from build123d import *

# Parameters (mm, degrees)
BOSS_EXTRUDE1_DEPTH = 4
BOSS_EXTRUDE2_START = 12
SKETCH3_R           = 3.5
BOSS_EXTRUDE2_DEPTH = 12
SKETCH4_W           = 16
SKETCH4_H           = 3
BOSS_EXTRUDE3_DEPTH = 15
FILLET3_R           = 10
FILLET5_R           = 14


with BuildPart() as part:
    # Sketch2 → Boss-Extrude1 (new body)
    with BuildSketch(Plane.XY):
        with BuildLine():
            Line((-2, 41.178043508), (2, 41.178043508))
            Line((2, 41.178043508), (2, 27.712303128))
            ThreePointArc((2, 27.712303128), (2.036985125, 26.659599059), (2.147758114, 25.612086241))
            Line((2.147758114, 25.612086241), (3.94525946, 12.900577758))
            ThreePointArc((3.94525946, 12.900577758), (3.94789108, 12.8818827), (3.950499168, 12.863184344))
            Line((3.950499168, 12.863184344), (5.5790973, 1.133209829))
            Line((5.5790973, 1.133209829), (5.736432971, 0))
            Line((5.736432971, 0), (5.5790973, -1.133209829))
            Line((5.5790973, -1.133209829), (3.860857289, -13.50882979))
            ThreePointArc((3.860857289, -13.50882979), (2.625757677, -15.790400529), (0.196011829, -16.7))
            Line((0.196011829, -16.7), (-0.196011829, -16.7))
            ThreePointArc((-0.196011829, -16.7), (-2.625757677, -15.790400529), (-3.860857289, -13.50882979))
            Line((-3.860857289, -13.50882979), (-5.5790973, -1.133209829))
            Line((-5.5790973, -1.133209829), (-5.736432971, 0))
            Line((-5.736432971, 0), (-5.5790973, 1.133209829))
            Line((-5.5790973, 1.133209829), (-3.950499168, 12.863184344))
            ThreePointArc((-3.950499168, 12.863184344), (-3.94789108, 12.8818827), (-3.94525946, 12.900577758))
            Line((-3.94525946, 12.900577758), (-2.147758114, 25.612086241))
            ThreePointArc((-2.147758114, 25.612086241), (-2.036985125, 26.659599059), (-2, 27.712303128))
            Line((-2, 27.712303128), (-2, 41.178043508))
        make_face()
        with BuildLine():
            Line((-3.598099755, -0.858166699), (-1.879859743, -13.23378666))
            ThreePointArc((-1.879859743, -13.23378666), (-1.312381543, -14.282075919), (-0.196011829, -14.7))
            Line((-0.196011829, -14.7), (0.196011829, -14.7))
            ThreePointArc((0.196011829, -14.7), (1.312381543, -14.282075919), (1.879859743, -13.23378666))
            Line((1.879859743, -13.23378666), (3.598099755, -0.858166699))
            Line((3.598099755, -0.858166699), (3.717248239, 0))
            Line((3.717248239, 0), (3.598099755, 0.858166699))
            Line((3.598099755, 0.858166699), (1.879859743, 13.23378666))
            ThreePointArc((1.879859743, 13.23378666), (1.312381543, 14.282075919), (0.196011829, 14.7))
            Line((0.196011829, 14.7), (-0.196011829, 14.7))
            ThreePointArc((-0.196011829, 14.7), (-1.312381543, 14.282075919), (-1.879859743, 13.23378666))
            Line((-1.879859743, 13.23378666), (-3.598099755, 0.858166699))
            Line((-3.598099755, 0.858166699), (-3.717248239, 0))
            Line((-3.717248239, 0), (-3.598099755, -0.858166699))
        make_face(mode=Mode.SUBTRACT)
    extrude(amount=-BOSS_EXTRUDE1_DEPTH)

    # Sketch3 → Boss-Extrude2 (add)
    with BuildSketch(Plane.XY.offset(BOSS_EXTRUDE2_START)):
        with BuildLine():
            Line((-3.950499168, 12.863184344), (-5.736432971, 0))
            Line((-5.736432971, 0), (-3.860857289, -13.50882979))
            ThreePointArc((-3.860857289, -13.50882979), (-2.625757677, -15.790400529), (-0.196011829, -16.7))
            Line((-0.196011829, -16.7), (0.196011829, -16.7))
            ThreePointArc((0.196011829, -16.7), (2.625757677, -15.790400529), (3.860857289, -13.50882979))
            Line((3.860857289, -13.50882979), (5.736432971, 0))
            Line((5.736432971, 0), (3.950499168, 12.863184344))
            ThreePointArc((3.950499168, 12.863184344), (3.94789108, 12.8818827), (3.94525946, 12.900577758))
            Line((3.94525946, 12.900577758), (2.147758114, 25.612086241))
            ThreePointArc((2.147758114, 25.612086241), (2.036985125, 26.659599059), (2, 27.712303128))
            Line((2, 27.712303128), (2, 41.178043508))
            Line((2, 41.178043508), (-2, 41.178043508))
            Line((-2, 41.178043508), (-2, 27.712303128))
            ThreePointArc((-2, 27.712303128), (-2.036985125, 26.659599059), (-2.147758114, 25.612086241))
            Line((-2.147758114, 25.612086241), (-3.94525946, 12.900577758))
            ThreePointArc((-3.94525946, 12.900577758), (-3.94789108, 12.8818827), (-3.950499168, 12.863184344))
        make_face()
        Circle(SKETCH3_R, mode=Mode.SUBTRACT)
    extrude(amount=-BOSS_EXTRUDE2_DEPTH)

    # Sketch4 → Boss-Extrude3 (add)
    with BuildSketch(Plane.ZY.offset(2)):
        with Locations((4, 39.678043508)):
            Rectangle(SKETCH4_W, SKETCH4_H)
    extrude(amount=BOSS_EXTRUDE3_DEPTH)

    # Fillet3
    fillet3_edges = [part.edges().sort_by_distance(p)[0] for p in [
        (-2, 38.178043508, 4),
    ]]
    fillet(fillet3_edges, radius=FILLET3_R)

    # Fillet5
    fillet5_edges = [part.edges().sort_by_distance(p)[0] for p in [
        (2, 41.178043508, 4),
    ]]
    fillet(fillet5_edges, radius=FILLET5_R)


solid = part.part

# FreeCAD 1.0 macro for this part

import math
import FreeCAD as App
import Part
import Sketcher
Q = App.Units.Quantity


def edges_at(feature, points):
    """Names of the edges that pass closest to the given points."""
    edges = feature.Shape.Edges
    near = lambda p: min(range(len(edges)), key=lambda i: edges[i].distToShape(Part.Vertex(*p))[0])
    return sorted({f"Edge{near(p) + 1}" for p in points})

doc = App.newDocument("Part")
body = doc.addObject("PartDesign::Body", "Body")

sketch1 = body.newObject("Sketcher::SketchObject", "Sketch")
sketch1.AttachmentSupport = (doc.getObject("XY_Plane"), [""])
sketch1.MapMode = "FlatFace"
sketch1.addGeometry(Part.LineSegment(App.Vector(2, 41.178, 0), App.Vector(-2, 41.178, 0)), False)
sketch1.addGeometry(Part.LineSegment(App.Vector(-2, 41.178, 0), App.Vector(-2, 27.712, 0)), False)
sketch1.addGeometry(Part.ArcOfCircle(Part.Circle(App.Vector(-17, 27.712, 0), App.Vector(0, 0, 1), 15), math.radians(-8.05), math.radians(0)), False)
sketch1.addGeometry(Part.LineSegment(App.Vector(-2.148, 25.612, 0), App.Vector(-3.945, 12.901, 0)), False)
sketch1.addGeometry(Part.ArcOfCircle(Part.Circle(App.Vector(10.907, 10.8, 0), App.Vector(0, 0, 1), 15), math.radians(171.95), math.radians(172.1)), False)
sketch1.addGeometry(Part.LineSegment(App.Vector(-3.95, 12.863, 0), App.Vector(-5.579, 1.133, 0)), False)
sketch1.addGeometry(Part.LineSegment(App.Vector(-5.579, 1.133, 0), App.Vector(-5.736, 0, 0)), False)
sketch1.addGeometry(Part.LineSegment(App.Vector(-5.736, 0, 0), App.Vector(-5.579, -1.133, 0)), False)
sketch1.addGeometry(Part.LineSegment(App.Vector(-5.579, -1.133, 0), App.Vector(-3.861, -13.509, 0)), False)
sketch1.addGeometry(Part.ArcOfCircle(Part.Circle(App.Vector(-0.196, -13, 0), App.Vector(0, 0, 1), 3.7), math.radians(-172), math.radians(-90)), False)
sketch1.addGeometry(Part.LineSegment(App.Vector(-0.196, -16.7, 0), App.Vector(0.196, -16.7, 0)), False)
sketch1.addGeometry(Part.ArcOfCircle(Part.Circle(App.Vector(0.196, -13, 0), App.Vector(0, 0, 1), 3.7), math.radians(-90), math.radians(-8)), False)
sketch1.addGeometry(Part.LineSegment(App.Vector(3.861, -13.509, 0), App.Vector(5.579, -1.133, 0)), False)
sketch1.addGeometry(Part.LineSegment(App.Vector(5.579, -1.133, 0), App.Vector(5.736, 0, 0)), False)
sketch1.addGeometry(Part.LineSegment(App.Vector(5.736, 0, 0), App.Vector(5.579, 1.133, 0)), False)
sketch1.addGeometry(Part.LineSegment(App.Vector(5.579, 1.133, 0), App.Vector(3.95, 12.863, 0)), False)
sketch1.addGeometry(Part.ArcOfCircle(Part.Circle(App.Vector(-10.907, 10.8, 0), App.Vector(0, 0, 1), 15), math.radians(7.9), math.radians(8.05)), False)
sketch1.addGeometry(Part.LineSegment(App.Vector(3.945, 12.901, 0), App.Vector(2.148, 25.612, 0)), False)
sketch1.addGeometry(Part.ArcOfCircle(Part.Circle(App.Vector(17, 27.712, 0), App.Vector(0, 0, 1), 15), math.radians(180), math.radians(188.05)), False)
sketch1.addGeometry(Part.LineSegment(App.Vector(2, 27.712, 0), App.Vector(2, 41.178, 0)), False)
sketch1.addGeometry(Part.LineSegment(App.Vector(-3.598, -0.858, 0), App.Vector(-3.717, 0, 0)), False)
sketch1.addGeometry(Part.LineSegment(App.Vector(-3.717, 0, 0), App.Vector(-3.598, 0.858, 0)), False)
sketch1.addGeometry(Part.LineSegment(App.Vector(-3.598, 0.858, 0), App.Vector(-1.88, 13.234, 0)), False)
sketch1.addGeometry(Part.ArcOfCircle(Part.Circle(App.Vector(-0.196, 13, 0), App.Vector(0, 0, 1), 1.7), math.radians(90), math.radians(172)), False)
sketch1.addGeometry(Part.LineSegment(App.Vector(-0.196, 14.7, 0), App.Vector(0.196, 14.7, 0)), False)
sketch1.addGeometry(Part.ArcOfCircle(Part.Circle(App.Vector(0.196, 13, 0), App.Vector(0, 0, 1), 1.7), math.radians(8), math.radians(90)), False)
sketch1.addGeometry(Part.LineSegment(App.Vector(1.88, 13.234, 0), App.Vector(3.598, 0.858, 0)), False)
sketch1.addGeometry(Part.LineSegment(App.Vector(3.598, 0.858, 0), App.Vector(3.717, 0, 0)), False)
sketch1.addGeometry(Part.LineSegment(App.Vector(3.717, 0, 0), App.Vector(3.598, -0.858, 0)), False)
sketch1.addGeometry(Part.LineSegment(App.Vector(3.598, -0.858, 0), App.Vector(1.88, -13.234, 0)), False)
sketch1.addGeometry(Part.ArcOfCircle(Part.Circle(App.Vector(0.196, -13, 0), App.Vector(0, 0, 1), 1.7), math.radians(-90), math.radians(-8)), False)
sketch1.addGeometry(Part.LineSegment(App.Vector(0.196, -14.7, 0), App.Vector(-0.196, -14.7, 0)), False)
sketch1.addGeometry(Part.ArcOfCircle(Part.Circle(App.Vector(-0.196, -13, 0), App.Vector(0, 0, 1), 1.7), math.radians(-172), math.radians(-90)), False)
sketch1.addGeometry(Part.LineSegment(App.Vector(-1.88, -13.234, 0), App.Vector(-3.598, -0.858, 0)), False)
sketch1.addConstraint(Sketcher.Constraint("Coincident", 0, 2, 1, 1))
sketch1.addConstraint(Sketcher.Constraint("Tangent", 1, 2, 2, 2))
sketch1.addConstraint(Sketcher.Constraint("Tangent", 2, 1, 3, 1))
sketch1.addConstraint(Sketcher.Constraint("Tangent", 3, 2, 4, 1))
sketch1.addConstraint(Sketcher.Constraint("Tangent", 4, 2, 5, 1))
sketch1.addConstraint(Sketcher.Constraint("Coincident", 5, 2, 6, 1))
sketch1.addConstraint(Sketcher.Constraint("Coincident", 6, 2, 7, 1))
sketch1.addConstraint(Sketcher.Constraint("Coincident", 7, 2, 8, 1))
sketch1.addConstraint(Sketcher.Constraint("Tangent", 8, 2, 9, 1))
sketch1.addConstraint(Sketcher.Constraint("Tangent", 9, 2, 10, 1))
sketch1.addConstraint(Sketcher.Constraint("Tangent", 10, 2, 11, 1))
sketch1.addConstraint(Sketcher.Constraint("Tangent", 11, 2, 12, 1))
sketch1.addConstraint(Sketcher.Constraint("Coincident", 12, 2, 13, 1))
sketch1.addConstraint(Sketcher.Constraint("Coincident", 13, 2, 14, 1))
sketch1.addConstraint(Sketcher.Constraint("Coincident", 14, 2, 15, 1))
sketch1.addConstraint(Sketcher.Constraint("Tangent", 15, 2, 16, 1))
sketch1.addConstraint(Sketcher.Constraint("Tangent", 16, 2, 17, 1))
sketch1.addConstraint(Sketcher.Constraint("Tangent", 17, 2, 18, 2))
sketch1.addConstraint(Sketcher.Constraint("Tangent", 18, 1, 19, 1))
sketch1.addConstraint(Sketcher.Constraint("Coincident", 19, 2, 0, 1))
sketch1.addConstraint(Sketcher.Constraint("Coincident", 20, 2, 21, 1))
sketch1.addConstraint(Sketcher.Constraint("Coincident", 21, 2, 22, 1))
sketch1.addConstraint(Sketcher.Constraint("Tangent", 22, 2, 23, 2))
sketch1.addConstraint(Sketcher.Constraint("Tangent", 23, 1, 24, 1))
sketch1.addConstraint(Sketcher.Constraint("Tangent", 24, 2, 25, 2))
sketch1.addConstraint(Sketcher.Constraint("Tangent", 25, 1, 26, 1))
sketch1.addConstraint(Sketcher.Constraint("Coincident", 26, 2, 27, 1))
sketch1.addConstraint(Sketcher.Constraint("Coincident", 27, 2, 28, 1))
sketch1.addConstraint(Sketcher.Constraint("Coincident", 28, 2, 29, 1))
sketch1.addConstraint(Sketcher.Constraint("Tangent", 29, 2, 30, 2))
sketch1.addConstraint(Sketcher.Constraint("Tangent", 30, 1, 31, 1))
sketch1.addConstraint(Sketcher.Constraint("Tangent", 31, 2, 32, 2))
sketch1.addConstraint(Sketcher.Constraint("Tangent", 32, 1, 33, 1))
sketch1.addConstraint(Sketcher.Constraint("Coincident", 33, 2, 20, 1))
sketch1.addConstraint(Sketcher.Constraint("Horizontal", 0))
sketch1.addConstraint(Sketcher.Constraint("Vertical", 1))
sketch1.addConstraint(Sketcher.Constraint("Horizontal", 10))
sketch1.addConstraint(Sketcher.Constraint("Vertical", 19))
sketch1.addConstraint(Sketcher.Constraint("Horizontal", 24))
sketch1.addConstraint(Sketcher.Constraint("Horizontal", 31))
sketch1.addConstraint(Sketcher.Constraint("Coincident", 30, 3, 11, 3))
sketch1.addConstraint(Sketcher.Constraint("Coincident", 32, 3, 9, 3))
sketch1.addConstraint(Sketcher.Constraint("Equal", 9, 11))
sketch1.addConstraint(Sketcher.Constraint("Equal", 4, 16))
sketch1.addConstraint(Sketcher.Constraint("Equal", 2, 18))
sketch1.addConstraint(Sketcher.Constraint("Equal", 23, 25))
sketch1.addConstraint(Sketcher.Constraint("Equal", 25, 30))
sketch1.addConstraint(Sketcher.Constraint("Symmetric", 11, 3, 23, 3, -1, 1))
sketch1.addConstraint(Sketcher.Constraint("Symmetric", 5, 2, 12, 2, -1, 1))
sketch1.addConstraint(Sketcher.Constraint("Symmetric", 6, 2, 13, 2, -1, 1))
sketch1.addConstraint(Sketcher.Constraint("Symmetric", 7, 2, 14, 2, -1, 1))
sketch1.addConstraint(Sketcher.Constraint("Symmetric", 20, 2, 27, 2, -1, 1))
sketch1.addConstraint(Sketcher.Constraint("Symmetric", 21, 2, 28, 2, -1, 1))
sketch1.addConstraint(Sketcher.Constraint("Symmetric", 25, 1, 32, 1, -1, 1))
sketch1.addConstraint(Sketcher.Constraint("Symmetric", 4, 3, 16, 3, -2))
sketch1.addConstraint(Sketcher.Constraint("Symmetric", 2, 3, 18, 3, -2))
sketch1.addConstraint(Sketcher.Constraint("Symmetric", 8, 2, 11, 2, -2))
sketch1.addConstraint(Sketcher.Constraint("Symmetric", 21, 2, 26, 2, -2))
sketch1.addConstraint(Sketcher.Constraint("PointOnObject", 6, 2, -1))
sketch1.addConstraint(Sketcher.Constraint("PointOnObject", 20, 2, -1))
sketch1.addConstraint(Sketcher.Constraint("Parallel", 5, 6))
sketch1.addConstraint(Sketcher.Constraint("Parallel", 7, 8))
sketch1.addConstraint(Sketcher.Constraint("Parallel", 15, 20))
sketch1.addConstraint(Sketcher.Constraint("Parallel", 21, 22))
sketch1.addConstraint(Sketcher.Constraint("Horizontal", 7, 2, 12, 2))
sketch1.addConstraint(Sketcher.Constraint("Horizontal", 28, 2, 33, 2))
sketch1.addConstraint(Sketcher.Constraint("Equal", 12, 22))
sketch1.addConstraint(Sketcher.Constraint("Radius", 2, Q("15 mm")))
sketch1.addConstraint(Sketcher.Constraint("Radius", 9, Q("3.7 mm")))
sketch1.addConstraint(Sketcher.Constraint("Radius", 23, Q("1.7 mm")))
sketch1.addConstraint(Sketcher.Constraint("DistanceX", 0, 2, 0, 1, Q("4 mm")))
sketch1.addConstraint(Sketcher.Constraint("DistanceY", 9, 3, -1, 1, Q("13 mm")))
sketch1.addConstraint(Sketcher.Constraint("Radius", 4, Q("15.000037 mm")))
sketch1.addConstraint(Sketcher.Constraint("DistanceX", 4, 2, 15, 2, Q("7.900998 mm")))
sketch1.addConstraint(Sketcher.Constraint("Distance", 20, Q("0.866399 mm")))
sketch1.addConstraint(Sketcher.Constraint("DistanceY", 1, 2, 1, 1, Q("13.46574 mm")))
sketch1.addConstraint(Sketcher.Constraint("DistanceX", 21, 2, -1, 1, Q("3.5981 mm")))
sketch1.addConstraint(Sketcher.Constraint("DistanceX", 3, 2, 2, 1, Q("1.797501 mm")))
sketch1.addConstraint(Sketcher.Constraint("DistanceY", 4, 2, 2, 1, Q("12.748902 mm")))
pad1 = body.newObject("PartDesign::Pad", "Pad")
pad1.Profile = sketch1
pad1.Length = 4
pad1.Reversed = True

sketch2 = body.newObject("Sketcher::SketchObject", "Sketch001")
sketch2.AttachmentSupport = (doc.getObject("XY_Plane"), [""])
sketch2.MapMode = "FlatFace"
sketch2.AttachmentOffset = App.Placement(App.Vector(0, 0, 12), App.Rotation())
sketch2.addGeometry(Part.LineSegment(App.Vector(-3.95, 12.863, 0), App.Vector(-5.736, 0, 0)), False)
sketch2.addGeometry(Part.LineSegment(App.Vector(-5.736, 0, 0), App.Vector(-3.861, -13.509, 0)), False)
sketch2.addGeometry(Part.ArcOfCircle(Part.Circle(App.Vector(-0.196, -13, 0), App.Vector(0, 0, 1), 3.7), math.radians(-172), math.radians(-90)), False)
sketch2.addGeometry(Part.LineSegment(App.Vector(-0.196, -16.7, 0), App.Vector(0.196, -16.7, 0)), False)
sketch2.addGeometry(Part.ArcOfCircle(Part.Circle(App.Vector(0.196, -13, 0), App.Vector(0, 0, 1), 3.7), math.radians(-90), math.radians(-8)), False)
sketch2.addGeometry(Part.LineSegment(App.Vector(3.861, -13.509, 0), App.Vector(5.736, 0, 0)), False)
sketch2.addGeometry(Part.LineSegment(App.Vector(5.736, 0, 0), App.Vector(3.95, 12.863, 0)), False)
sketch2.addGeometry(Part.ArcOfCircle(Part.Circle(App.Vector(-10.907, 10.8, 0), App.Vector(0, 0, 1), 15), math.radians(7.9), math.radians(8.05)), False)
sketch2.addGeometry(Part.LineSegment(App.Vector(3.945, 12.901, 0), App.Vector(2.148, 25.612, 0)), False)
sketch2.addGeometry(Part.ArcOfCircle(Part.Circle(App.Vector(17, 27.712, 0), App.Vector(0, 0, 1), 15), math.radians(180), math.radians(188.05)), False)
sketch2.addGeometry(Part.LineSegment(App.Vector(2, 27.712, 0), App.Vector(2, 41.178, 0)), False)
sketch2.addGeometry(Part.LineSegment(App.Vector(2, 41.178, 0), App.Vector(-2, 41.178, 0)), False)
sketch2.addGeometry(Part.LineSegment(App.Vector(-2, 41.178, 0), App.Vector(-2, 27.712, 0)), False)
sketch2.addGeometry(Part.ArcOfCircle(Part.Circle(App.Vector(-17, 27.712, 0), App.Vector(0, 0, 1), 15), math.radians(-8.05), math.radians(0)), False)
sketch2.addGeometry(Part.LineSegment(App.Vector(-2.148, 25.612, 0), App.Vector(-3.945, 12.901, 0)), False)
sketch2.addGeometry(Part.ArcOfCircle(Part.Circle(App.Vector(10.907, 10.8, 0), App.Vector(0, 0, 1), 15), math.radians(171.95), math.radians(172.1)), False)
sketch2.addGeometry(Part.Circle(App.Vector(0, 0, 0), App.Vector(0, 0, 1), 3.5), False)
sketch2.addConstraint(Sketcher.Constraint("Coincident", 0, 2, 1, 1))
sketch2.addConstraint(Sketcher.Constraint("Tangent", 1, 2, 2, 1))
sketch2.addConstraint(Sketcher.Constraint("Tangent", 2, 2, 3, 1))
sketch2.addConstraint(Sketcher.Constraint("Tangent", 3, 2, 4, 1))
sketch2.addConstraint(Sketcher.Constraint("Tangent", 4, 2, 5, 1))
sketch2.addConstraint(Sketcher.Constraint("Coincident", 5, 2, 6, 1))
sketch2.addConstraint(Sketcher.Constraint("Tangent", 6, 2, 7, 1))
sketch2.addConstraint(Sketcher.Constraint("Tangent", 7, 2, 8, 1))
sketch2.addConstraint(Sketcher.Constraint("Tangent", 8, 2, 9, 2))
sketch2.addConstraint(Sketcher.Constraint("Tangent", 9, 1, 10, 1))
sketch2.addConstraint(Sketcher.Constraint("Coincident", 10, 2, 11, 1))
sketch2.addConstraint(Sketcher.Constraint("Coincident", 11, 2, 12, 1))
sketch2.addConstraint(Sketcher.Constraint("Tangent", 12, 2, 13, 2))
sketch2.addConstraint(Sketcher.Constraint("Tangent", 13, 1, 14, 1))
sketch2.addConstraint(Sketcher.Constraint("Tangent", 14, 2, 15, 1))
sketch2.addConstraint(Sketcher.Constraint("Tangent", 15, 2, 0, 1))
sketch2.addConstraint(Sketcher.Constraint("Horizontal", 3))
sketch2.addConstraint(Sketcher.Constraint("Vertical", 10))
sketch2.addConstraint(Sketcher.Constraint("Horizontal", 11))
sketch2.addConstraint(Sketcher.Constraint("Vertical", 12))
sketch2.addConstraint(Sketcher.Constraint("Coincident", 16, 3, -1, 1))
sketch2.addConstraint(Sketcher.Constraint("Equal", 2, 4))
sketch2.addConstraint(Sketcher.Constraint("Equal", 9, 13))
sketch2.addConstraint(Sketcher.Constraint("Equal", 7, 15))
sketch2.addConstraint(Sketcher.Constraint("Symmetric", 0, 2, 5, 2, -1, 1))
sketch2.addConstraint(Sketcher.Constraint("Symmetric", 9, 3, 13, 3, -2))
sketch2.addConstraint(Sketcher.Constraint("Symmetric", 7, 3, 15, 3, -2))
sketch2.addConstraint(Sketcher.Constraint("Symmetric", 1, 2, 4, 2, -2))
sketch2.addConstraint(Sketcher.Constraint("Parallel", 0, 5))
sketch2.addConstraint(Sketcher.Constraint("Diameter", 16, Q("7 mm")))
sketch2.addConstraint(Sketcher.Constraint("Radius", 9, Q("15 mm")))
sketch2.addConstraint(Sketcher.Constraint("Radius", 2, Q("3.7 mm")))
sketch2.addConstraint(Sketcher.Constraint("DistanceX", 11, 2, 11, 1, Q("4 mm")))
sketch2.addConstraint(Sketcher.Constraint("DistanceY", 2, 3, -1, 1, Q("13 mm")))
sketch2.addConstraint(Sketcher.Constraint("Radius", 7, Q("15.000037 mm")))
sketch2.addConstraint(Sketcher.Constraint("DistanceX", 15, 2, 6, 2, Q("7.900998 mm")))
sketch2.addConstraint(Sketcher.Constraint("DistanceY", 10, 1, 10, 2, Q("13.46574 mm")))
sketch2.addConstraint(Sketcher.Constraint("DistanceX", 8, 2, 7, 2, Q("1.797501 mm")))
sketch2.addConstraint(Sketcher.Constraint("DistanceY", 6, 2, 8, 2, Q("12.748902 mm")))
sketch2.addConstraint(Sketcher.Constraint("DistanceX", 3, 1, 3, 2, Q("0.392024 mm")))
pad2 = body.newObject("PartDesign::Pad", "Pad001")
pad2.Profile = sketch2
pad2.Length = 12
pad2.Reversed = True

sketch3 = body.newObject("Sketcher::SketchObject", "Sketch002")
sketch3.AttachmentSupport = (doc.getObject("YZ_Plane"), [""])
sketch3.MapMode = "FlatFace"
sketch3.AttachmentOffset = App.Placement(App.Vector(0, 0, -2), App.Rotation())
sketch3.addGeometry(Part.LineSegment(App.Vector(41.2, -4, 0), App.Vector(38.2, -4, 0)), False)
sketch3.addGeometry(Part.LineSegment(App.Vector(38.2, -4, 0), App.Vector(38.2, 12, 0)), False)
sketch3.addGeometry(Part.LineSegment(App.Vector(38.2, 12, 0), App.Vector(41.2, 12, 0)), False)
sketch3.addGeometry(Part.LineSegment(App.Vector(41.2, 12, 0), App.Vector(41.2, -4, 0)), False)
sketch3.addConstraint(Sketcher.Constraint("Coincident", 0, 2, 1, 1))
sketch3.addConstraint(Sketcher.Constraint("Coincident", 1, 2, 2, 1))
sketch3.addConstraint(Sketcher.Constraint("Coincident", 2, 2, 3, 1))
sketch3.addConstraint(Sketcher.Constraint("Coincident", 3, 2, 0, 1))
sketch3.addConstraint(Sketcher.Constraint("Horizontal", 0))
sketch3.addConstraint(Sketcher.Constraint("Vertical", 1))
sketch3.addConstraint(Sketcher.Constraint("Horizontal", 2))
sketch3.addConstraint(Sketcher.Constraint("Vertical", 3))
sketch3.addConstraint(Sketcher.Constraint("DistanceX", 0, 2, 0, 1, Q("3 mm")))
sketch3.addConstraint(Sketcher.Constraint("DistanceY", 1, 1, 1, 2, Q("16 mm")))
sketch3.addConstraint(Sketcher.Constraint("DistanceY", 0, 2, -1, 1, Q("4 mm")))
sketch3.addConstraint(Sketcher.Constraint("DistanceX", -1, 1, 0, 2, Q("38.178044 mm")))
pad3 = body.newObject("PartDesign::Pad", "Pad002")
pad3.Profile = sketch3
pad3.Length = 15
pad3.Reversed = True
doc.recompute()

fillet = body.newObject("PartDesign::Fillet", "Fillet")
fillet.Base = (pad3, edges_at(pad3, [(-2, 38.178, 4)]))
fillet.Radius = 10
doc.recompute()

fillet2 = body.newObject("PartDesign::Fillet", "Fillet001")
fillet2.Base = (fillet, edges_at(fillet, [(2, 41.178, 4)]))
fillet2.Radius = 14

doc.recompute()
